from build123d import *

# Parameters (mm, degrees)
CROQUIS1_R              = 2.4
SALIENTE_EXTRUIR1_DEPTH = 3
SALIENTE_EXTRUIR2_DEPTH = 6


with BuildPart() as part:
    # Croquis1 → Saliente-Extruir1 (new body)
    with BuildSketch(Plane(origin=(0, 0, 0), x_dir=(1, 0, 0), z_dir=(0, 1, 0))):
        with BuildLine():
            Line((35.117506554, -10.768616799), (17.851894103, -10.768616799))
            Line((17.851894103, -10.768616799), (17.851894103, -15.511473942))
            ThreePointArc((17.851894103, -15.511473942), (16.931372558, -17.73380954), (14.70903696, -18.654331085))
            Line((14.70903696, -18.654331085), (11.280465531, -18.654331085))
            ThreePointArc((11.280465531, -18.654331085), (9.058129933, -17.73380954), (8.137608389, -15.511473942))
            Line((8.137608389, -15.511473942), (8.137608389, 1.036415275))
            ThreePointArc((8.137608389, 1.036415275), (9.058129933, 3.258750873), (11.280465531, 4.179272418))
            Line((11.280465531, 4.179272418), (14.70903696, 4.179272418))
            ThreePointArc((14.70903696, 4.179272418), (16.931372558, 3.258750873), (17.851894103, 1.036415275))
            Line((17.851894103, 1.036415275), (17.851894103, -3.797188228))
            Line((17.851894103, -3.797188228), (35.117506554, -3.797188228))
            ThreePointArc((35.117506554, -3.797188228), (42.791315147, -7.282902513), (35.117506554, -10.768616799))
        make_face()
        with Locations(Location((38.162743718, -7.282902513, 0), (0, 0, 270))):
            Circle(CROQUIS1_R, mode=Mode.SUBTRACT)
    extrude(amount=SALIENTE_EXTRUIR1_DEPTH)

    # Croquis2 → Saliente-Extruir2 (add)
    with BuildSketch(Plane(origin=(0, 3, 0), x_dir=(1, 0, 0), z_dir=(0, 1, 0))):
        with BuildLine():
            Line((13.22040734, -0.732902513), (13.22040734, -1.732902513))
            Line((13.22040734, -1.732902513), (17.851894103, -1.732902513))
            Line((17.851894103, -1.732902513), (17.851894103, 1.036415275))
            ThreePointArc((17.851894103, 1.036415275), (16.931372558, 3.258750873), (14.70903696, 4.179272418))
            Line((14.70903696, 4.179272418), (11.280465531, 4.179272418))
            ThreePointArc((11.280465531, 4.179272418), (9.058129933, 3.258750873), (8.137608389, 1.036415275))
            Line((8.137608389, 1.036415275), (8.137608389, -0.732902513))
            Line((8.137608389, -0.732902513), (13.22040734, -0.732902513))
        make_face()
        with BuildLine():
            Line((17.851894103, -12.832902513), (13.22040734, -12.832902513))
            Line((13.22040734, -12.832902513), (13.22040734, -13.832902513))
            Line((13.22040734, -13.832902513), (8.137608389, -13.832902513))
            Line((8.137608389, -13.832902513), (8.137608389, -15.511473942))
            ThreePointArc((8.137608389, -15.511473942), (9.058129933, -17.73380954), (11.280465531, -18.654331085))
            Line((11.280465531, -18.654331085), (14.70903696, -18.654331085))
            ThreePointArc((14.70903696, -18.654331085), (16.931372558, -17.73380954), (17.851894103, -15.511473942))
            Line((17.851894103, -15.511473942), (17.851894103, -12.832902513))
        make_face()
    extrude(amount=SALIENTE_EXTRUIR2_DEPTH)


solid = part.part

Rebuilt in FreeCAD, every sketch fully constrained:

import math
import FreeCAD as App
import Part
import Sketcher
from FreeCAD import Vector
Q = App.Units.Quantity

doc = App.newDocument("Part")
params = doc.addObject("Spreadsheet::Sheet", "Params")
for row, (alias, value) in enumerate([
    ("sketch1_diameter", "4.8 mm"),
    ("pad1_length", "3 mm"),
    ("sketch2_height", "1 mm"),
    ("pad2_length", "6 mm"),
], start=1):
    params.set(f"A{row}", alias)
    params.set(f"B{row}", "=" + value)
    params.setAlias(f"B{row}", alias)

body = doc.addObject("PartDesign::Body", "Body")

sketch1 = body.newObject("Sketcher::SketchObject", "Sketch")
sketch1.AttachmentSupport = (doc.getObject("XZ_Plane"), [""])
sketch1.MapMode = "FlatFace"
sketch1.addGeometry([
    Part.LineSegment(Vector(17.9, 10.8, 0), Vector(35.1, 10.8, 0)),
    Part.ArcOfCircle(Part.Circle(Vector(38.2, 7.3, 0), Vector(0, 0, 1), 4.6), math.radians(-131), math.radians(131)),
    Part.LineSegment(Vector(35.1, 3.8, 0), Vector(17.9, 3.8, 0)),
    Part.LineSegment(Vector(17.9, 3.8, 0), Vector(17.9, -1, 0)),
    Part.ArcOfCircle(Part.Circle(Vector(14.7, -1, 0), Vector(0, 0, 1), 3.1), math.radians(-90), math.radians(0)),
    Part.LineSegment(Vector(14.7, -4.2, 0), Vector(11.3, -4.2, 0)),
    Part.ArcOfCircle(Part.Circle(Vector(11.3, -1, 0), Vector(0, 0, 1), 3.1), math.radians(180), math.radians(270)),
    Part.LineSegment(Vector(8.1, -1, 0), Vector(8.1, 15.5, 0)),
    Part.ArcOfCircle(Part.Circle(Vector(11.3, 15.5, 0), Vector(0, 0, 1), 3.1), math.radians(90), math.radians(180)),
    Part.LineSegment(Vector(11.3, 18.7, 0), Vector(14.7, 18.7, 0)),
    Part.ArcOfCircle(Part.Circle(Vector(14.7, 15.5, 0), Vector(0, 0, 1), 3.1), math.radians(0), math.radians(90)),
    Part.LineSegment(Vector(17.9, 15.5, 0), Vector(17.9, 10.8, 0)),
    Part.Circle(Vector(38.2, 7.3, 0), Vector(0, 0, 1), 2.4),
], False)
sketch1.addConstraint([
    Sketcher.Constraint("Coincident", 0, 2, 1, 2),
    Sketcher.Constraint("Coincident", 1, 1, 2, 1),
    Sketcher.Constraint("Coincident", 2, 2, 3, 1),
    Sketcher.Constraint("Tangent", 3, 2, 4, 2),
    Sketcher.Constraint("Tangent", 4, 1, 5, 1),
    Sketcher.Constraint("Tangent", 5, 2, 6, 2),
    Sketcher.Constraint("Tangent", 6, 1, 7, 1),
    Sketcher.Constraint("Tangent", 7, 2, 8, 2),
    Sketcher.Constraint("Tangent", 8, 1, 9, 1),
    Sketcher.Constraint("Tangent", 9, 2, 10, 2),
    Sketcher.Constraint("Tangent", 10, 1, 11, 1),
    Sketcher.Constraint("Coincident", 11, 2, 0, 1),
    Sketcher.Constraint("Horizontal", 0),
    Sketcher.Constraint("Horizontal", 2),
    Sketcher.Constraint("Vertical", 3),
    Sketcher.Constraint("Horizontal", 5),
    Sketcher.Constraint("Vertical", 7),
    Sketcher.Constraint("Horizontal", 9),
    Sketcher.Constraint("Vertical", 11),
    Sketcher.Constraint("Coincident", 12, 3, 1, 3),
    Sketcher.Constraint("Equal", 4, 6),
    Sketcher.Constraint("Equal", 6, 8),
    Sketcher.Constraint("Equal", 8, 10),
    Sketcher.Constraint("Vertical", 4, 3, 10, 3),
    Sketcher.Constraint("Vertical", 0, 2, 1, 1),
    Sketcher.Constraint("Diameter", 12, Q("4.8 mm")),
    Sketcher.Constraint("Radius", 1, Q("4.628571 mm")),
    Sketcher.Constraint("Radius", 4, Q("3.142857 mm")),
    Sketcher.Constraint("DistanceX", 5, 2, 5, 1, Q("3.428571 mm")),
    Sketcher.Constraint("DistanceY", 7, 1, 7, 2, Q("16.547889 mm")),
    Sketcher.Constraint("DistanceX", 0, 1, 0, 2, Q("17.265612 mm")),
    Sketcher.Constraint("DistanceY", 3, 2, 3, 1, Q("4.833604 mm")),
    Sketcher.Constraint("DistanceY", 11, 2, 11, 1, Q("4.742857 mm")),
    Sketcher.Constraint("DistanceY", -1, 1, 1, 1, Q("3.797188 mm")),
    Sketcher.Constraint("DistanceX", -1, 1, 6, 1, Q("8.137608 mm")),
])
sketch1.setExpression("Constraints[25]", "Params.sketch1_diameter")
pad1 = body.newObject("PartDesign::Pad", "Pad")
pad1.Profile = sketch1
pad1.setExpression("Length", "Params.pad1_length")
pad1.Reversed = True

sketch2 = body.newObject("Sketcher::SketchObject", "Sketch001")
sketch2.AttachmentSupport = (doc.getObject("XZ_Plane"), [""])
sketch2.MapMode = "FlatFace"
sketch2.AttachmentOffset = App.Placement(Vector(0, 0, -3), App.Rotation())
sketch2.addGeometry([
    Part.LineSegment(Vector(13.2, 0.7, 0), Vector(13.2, 1.7, 0)),
    Part.LineSegment(Vector(13.2, 1.7, 0), Vector(17.9, 1.7, 0)),
    Part.LineSegment(Vector(17.9, 1.7, 0), Vector(17.9, -1, 0)),
    Part.ArcOfCircle(Part.Circle(Vector(14.7, -1, 0), Vector(0, 0, 1), 3.1), math.radians(-90), math.radians(0)),
    Part.LineSegment(Vector(14.7, -4.2, 0), Vector(11.3, -4.2, 0)),
    Part.ArcOfCircle(Part.Circle(Vector(11.3, -1, 0), Vector(0, 0, 1), 3.1), math.radians(180), math.radians(270)),
    Part.LineSegment(Vector(8.1, -1, 0), Vector(8.1, 0.7, 0)),
    Part.LineSegment(Vector(8.1, 0.7, 0), Vector(13.2, 0.7, 0)),
    Part.LineSegment(Vector(17.9, 12.8, 0), Vector(13.2, 12.8, 0)),
    Part.LineSegment(Vector(13.2, 12.8, 0), Vector(13.2, 13.8, 0)),
    Part.LineSegment(Vector(13.2, 13.8, 0), Vector(8.1, 13.8, 0)),
    Part.LineSegment(Vector(8.1, 13.8, 0), Vector(8.1, 15.5, 0)),
    Part.ArcOfCircle(Part.Circle(Vector(11.3, 15.5, 0), Vector(0, 0, 1), 3.1), math.radians(90), math.radians(180)),
    Part.LineSegment(Vector(11.3, 18.7, 0), Vector(14.7, 18.7, 0)),
    Part.ArcOfCircle(Part.Circle(Vector(14.7, 15.5, 0), Vector(0, 0, 1), 3.1), math.radians(0), math.radians(90)),
    Part.LineSegment(Vector(17.9, 15.5, 0), Vector(17.9, 12.8, 0)),
], False)
sketch2.addConstraint([
    Sketcher.Constraint("Coincident", 0, 2, 1, 1),
    Sketcher.Constraint("Coincident", 1, 2, 2, 1),
    Sketcher.Constraint("Tangent", 2, 2, 3, 2),
    Sketcher.Constraint("Tangent", 3, 1, 4, 1),
    Sketcher.Constraint("Tangent", 4, 2, 5, 2),
    Sketcher.Constraint("Tangent", 5, 1, 6, 1),
    Sketcher.Constraint("Coincident", 6, 2, 7, 1),
    Sketcher.Constraint("Coincident", 7, 2, 0, 1),
    Sketcher.Constraint("Coincident", 8, 2, 9, 1),
    Sketcher.Constraint("Coincident", 9, 2, 10, 1),
    Sketcher.Constraint("Coincident", 10, 2, 11, 1),
    Sketcher.Constraint("Tangent", 11, 2, 12, 2),
    Sketcher.Constraint("Tangent", 12, 1, 13, 1),
    Sketcher.Constraint("Tangent", 13, 2, 14, 2),
    Sketcher.Constraint("Tangent", 14, 1, 15, 1),
    Sketcher.Constraint("Coincident", 15, 2, 8, 1),
    Sketcher.Constraint("Vertical", 0),
    Sketcher.Constraint("Horizontal", 1),
    Sketcher.Constraint("Vertical", 2),
    Sketcher.Constraint("Horizontal", 4),
    Sketcher.Constraint("Vertical", 6),
    Sketcher.Constraint("Horizontal", 7),
    Sketcher.Constraint("Horizontal", 8),
    Sketcher.Constraint("Vertical", 9),
    Sketcher.Constraint("Horizontal", 10),
    Sketcher.Constraint("Vertical", 11),
    Sketcher.Constraint("Horizontal", 13),
    Sketcher.Constraint("Vertical", 15),
    Sketcher.Constraint("Equal", 3, 5),
    Sketcher.Constraint("Equal", 5, 12),
    Sketcher.Constraint("Equal", 12, 14),
    Sketcher.Constraint("Vertical", 5, 3, 12, 3),
    Sketcher.Constraint("Vertical", 3, 3, 14, 3),
    Sketcher.Constraint("Vertical", 7, 2, 8, 2),
    Sketcher.Constraint("Equal", 0, 9),
    Sketcher.Constraint("DistanceY", 0, 1, 0, 2, Q("1 mm")),
    Sketcher.Constraint("DistanceY", 0, 2, 8, 2, Q("11.1 mm")),
    Sketcher.Constraint("DistanceX", 7, 1, 7, 2, Q("5.082799 mm")),
    Sketcher.Constraint("Radius", 3, Q("3.142857 mm")),
    Sketcher.Constraint("DistanceX", 4, 2, 4, 1, Q("3.428571 mm")),
    Sketcher.Constraint("DistanceY", 11, 1, 11, 2, Q("1.678571 mm")),
    Sketcher.Constraint("DistanceY", 2, 2, 2, 1, Q("2.769318 mm")),
    Sketcher.Constraint("DistanceX", -1, 1, 5, 1, Q("8.137608 mm")),
    Sketcher.Constraint("DistanceY", -1, 1, 12, 1, Q("18.654331 mm")),
])
sketch2.setExpression("Constraints[35]", "Params.sketch2_height")
pad2 = body.newObject("PartDesign::Pad", "Pad001")
pad2.Profile = sketch2
pad2.setExpression("Length", "Params.pad2_length")
pad2.Reversed = True

doc.recompute()
